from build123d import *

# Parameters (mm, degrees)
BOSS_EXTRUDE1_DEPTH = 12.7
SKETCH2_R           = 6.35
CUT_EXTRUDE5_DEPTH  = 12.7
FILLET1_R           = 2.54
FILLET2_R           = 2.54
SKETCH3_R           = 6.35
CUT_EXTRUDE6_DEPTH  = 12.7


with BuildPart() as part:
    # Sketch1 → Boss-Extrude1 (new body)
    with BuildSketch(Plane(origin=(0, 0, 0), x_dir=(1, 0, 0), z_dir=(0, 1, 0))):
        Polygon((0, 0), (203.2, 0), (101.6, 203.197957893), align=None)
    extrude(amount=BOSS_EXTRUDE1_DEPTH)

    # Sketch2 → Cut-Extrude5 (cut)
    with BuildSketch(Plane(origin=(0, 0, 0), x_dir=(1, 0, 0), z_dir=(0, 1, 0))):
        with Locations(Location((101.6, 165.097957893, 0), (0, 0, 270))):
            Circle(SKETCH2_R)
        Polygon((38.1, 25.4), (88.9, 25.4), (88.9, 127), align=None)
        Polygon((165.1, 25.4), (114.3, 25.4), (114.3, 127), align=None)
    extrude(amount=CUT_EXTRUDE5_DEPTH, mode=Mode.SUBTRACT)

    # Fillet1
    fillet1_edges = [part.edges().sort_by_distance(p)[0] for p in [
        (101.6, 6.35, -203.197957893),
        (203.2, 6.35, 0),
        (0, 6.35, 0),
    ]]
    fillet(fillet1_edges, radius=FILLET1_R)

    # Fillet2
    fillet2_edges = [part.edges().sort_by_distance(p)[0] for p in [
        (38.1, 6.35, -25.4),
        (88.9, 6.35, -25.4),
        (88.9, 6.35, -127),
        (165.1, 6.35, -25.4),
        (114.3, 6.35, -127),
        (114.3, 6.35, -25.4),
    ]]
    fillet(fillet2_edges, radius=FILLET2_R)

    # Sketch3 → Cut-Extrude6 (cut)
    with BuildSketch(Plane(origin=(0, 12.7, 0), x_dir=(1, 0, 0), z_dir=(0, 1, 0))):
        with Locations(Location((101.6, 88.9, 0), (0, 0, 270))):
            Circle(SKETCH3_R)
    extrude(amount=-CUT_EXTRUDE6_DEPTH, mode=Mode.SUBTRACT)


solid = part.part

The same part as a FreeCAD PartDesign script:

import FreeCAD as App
import Part
import Sketcher
from FreeCAD import Vector
Q = App.Units.Quantity


def edges_at(feature, points):
    """Names of the edges that pass closest to the given points."""
    edges = feature.Shape.Edges
    near = lambda p: min(range(len(edges)), key=lambda i: edges[i].distToShape(Part.Vertex(*p))[0])
    return sorted({f"Edge{near(p) + 1}" for p in points})

doc = App.newDocument("Part")
body = doc.addObject("PartDesign::Body", "Body")

# Sketch on XZ plane
sketch1 = doc.addObject("Sketcher::SketchObject", "Sketch")
body.addObject(sketch1)
sketch1.AttachmentSupport = (doc.XZ_Plane, [""])
sketch1.MapMode = "FlatFace"
sketch1.addGeometry([
    Part.LineSegment(Vector(0, 0, 0), Vector(203, 0, 0)),
    Part.LineSegment(Vector(203, 0, 0), Vector(102, -203, 0)),
    Part.LineSegment(Vector(102, -203, 0), Vector(0, 0, 0)),
], False)
sketch1.addConstraint([
    Sketcher.Constraint("Coincident", 0, 2, 1, 1),
    Sketcher.Constraint("Coincident", 1, 2, 2, 1),
    Sketcher.Constraint("Coincident", 2, 2, 0, 1),
    Sketcher.Constraint("Horizontal", 0),
    Sketcher.Constraint("Coincident", 2, 2, -1, 1),
    Sketcher.Constraint("Equal", 1, 2),
    Sketcher.Constraint("DistanceX", 0, 1, 0, 2, Q("8 in")),
    Sketcher.Constraint("Distance", 1, Q("8.9442 in")),
])
pad1 = doc.addObject("PartDesign::Pad", "Pad")
body.addObject(pad1)
pad1.Profile = sketch1
pad1.Length = Q("0.5 in")
pad1.Reversed = True

# Sketch on XZ plane
sketch2 = doc.addObject("Sketcher::SketchObject", "Sketch001")
body.addObject(sketch2)
sketch2.AttachmentSupport = (doc.XZ_Plane, [""])
sketch2.MapMode = "FlatFace"
sketch2.addGeometry([
    Part.Circle(Vector(102, -165, 0), Vector(0, 0, 1), 6),  # 0
    Part.LineSegment(Vector(38, -25, 0), Vector(89, -25, 0)),  # 1
    Part.LineSegment(Vector(89, -25, 0), Vector(89, -127, 0)),  # 2
    Part.LineSegment(Vector(89, -127, 0), Vector(38, -25, 0)),  # 3
    Part.LineSegment(Vector(114, -25, 0), Vector(165, -25, 0)),  # 4
    Part.LineSegment(Vector(165, -25, 0), Vector(114, -127, 0)),  # 5
    Part.LineSegment(Vector(114, -127, 0), Vector(114, -25, 0)),  # 6
], False)
sketch2.addConstraint([
    Sketcher.Constraint("Coincident", 1, 2, 2, 1),
    Sketcher.Constraint("Coincident", 2, 2, 3, 1),
    Sketcher.Constraint("Coincident", 3, 2, 1, 1),
    Sketcher.Constraint("Coincident", 4, 2, 5, 1),
    Sketcher.Constraint("Coincident", 5, 2, 6, 1),
    Sketcher.Constraint("Coincident", 6, 2, 4, 1),
    Sketcher.Constraint("Horizontal", 1),
    Sketcher.Constraint("Vertical", 2),
    Sketcher.Constraint("Horizontal", 4),
    Sketcher.Constraint("Vertical", 6),
    Sketcher.Constraint("Horizontal", 3, 2, 4, 2),
    Sketcher.Constraint("Horizontal", 2, 2, 5, 2),
    Sketcher.Constraint("Equal", 1, 4),
    Sketcher.Constraint("Diameter", 0, Q("0.5 in")),
    Sketcher.Constraint("DistanceX", 1, 1, 1, 2, Q("2 in")),
    Sketcher.Constraint("DistanceY", 2, 2, 2, 1, Q("4 in")),
    Sketcher.Constraint("DistanceX", -1, 1, 0, 3, Q("4 in")),
    Sketcher.Constraint("DistanceY", 1, 2, -1, 1, Q("1 in")),
    Sketcher.Constraint("DistanceX", 1, 2, 4, 2, Q("3 in")),
    Sketcher.Constraint("DistanceX", -1, 1, 1, 2, Q("3.5 in")),
    Sketcher.Constraint("DistanceY", 0, 3, -1, 1, Q("165.097958 mm")),
])
pocket1 = doc.addObject("PartDesign::Pocket", "Pocket")
body.addObject(pocket1)
pocket1.Profile = sketch2
pocket1.Length = Q("0.5 in")
doc.recompute()

fillet = doc.addObject("PartDesign::Fillet", "Fillet")
body.addObject(fillet)
fillet.Base = (pocket1, edges_at(pocket1, [(101.6, 6.35, -203.198), (203.2, 6.35, 0), (0, 6.35, 0)]))
fillet.Radius = Q("0.1 in")
doc.recompute()

fillet2 = doc.addObject("PartDesign::Fillet", "Fillet001")
body.addObject(fillet2)
fillet2.Base = (fillet, edges_at(fillet, [
    (38.1, 6.35, -25.4),
    (88.9, 6.35, -25.4),
    (88.9, 6.35, -127),
    (165.1, 6.35, -25.4),
    (114.3, 6.35, -127),
    (114.3, 6.35, -25.4),
]))
fillet2.Radius = Q("0.1 in")

# Sketch on XZ plane
sketch3 = doc.addObject("Sketcher::SketchObject", "Sketch002")
body.addObject(sketch3)
sketch3.AttachmentSupport = (doc.XZ_Plane, [""])
sketch3.MapMode = "FlatFace"
sketch3.AttachmentOffset = App.Placement(Vector(0, 0, -0.5 * 25.4), App.Rotation())
sketch3.addGeometry(Part.Circle(Vector(102, -89, 0), Vector(0, 0, 1), 6), False)
sketch3.addConstraint([
    Sketcher.Constraint("Diameter", 0, Q("0.5 in")),
    Sketcher.Constraint("DistanceX", -1, 1, 0, 3, Q("4 in")),
    Sketcher.Constraint("DistanceY", 0, 3, -1, 1, Q("3.5 in")),
])
pocket2 = doc.addObject("PartDesign::Pocket", "Pocket001")
body.addObject(pocket2)
pocket2.Profile = sketch3
pocket2.Length = Q("0.5 in")
pocket2.Reversed = True

doc.recompute()
